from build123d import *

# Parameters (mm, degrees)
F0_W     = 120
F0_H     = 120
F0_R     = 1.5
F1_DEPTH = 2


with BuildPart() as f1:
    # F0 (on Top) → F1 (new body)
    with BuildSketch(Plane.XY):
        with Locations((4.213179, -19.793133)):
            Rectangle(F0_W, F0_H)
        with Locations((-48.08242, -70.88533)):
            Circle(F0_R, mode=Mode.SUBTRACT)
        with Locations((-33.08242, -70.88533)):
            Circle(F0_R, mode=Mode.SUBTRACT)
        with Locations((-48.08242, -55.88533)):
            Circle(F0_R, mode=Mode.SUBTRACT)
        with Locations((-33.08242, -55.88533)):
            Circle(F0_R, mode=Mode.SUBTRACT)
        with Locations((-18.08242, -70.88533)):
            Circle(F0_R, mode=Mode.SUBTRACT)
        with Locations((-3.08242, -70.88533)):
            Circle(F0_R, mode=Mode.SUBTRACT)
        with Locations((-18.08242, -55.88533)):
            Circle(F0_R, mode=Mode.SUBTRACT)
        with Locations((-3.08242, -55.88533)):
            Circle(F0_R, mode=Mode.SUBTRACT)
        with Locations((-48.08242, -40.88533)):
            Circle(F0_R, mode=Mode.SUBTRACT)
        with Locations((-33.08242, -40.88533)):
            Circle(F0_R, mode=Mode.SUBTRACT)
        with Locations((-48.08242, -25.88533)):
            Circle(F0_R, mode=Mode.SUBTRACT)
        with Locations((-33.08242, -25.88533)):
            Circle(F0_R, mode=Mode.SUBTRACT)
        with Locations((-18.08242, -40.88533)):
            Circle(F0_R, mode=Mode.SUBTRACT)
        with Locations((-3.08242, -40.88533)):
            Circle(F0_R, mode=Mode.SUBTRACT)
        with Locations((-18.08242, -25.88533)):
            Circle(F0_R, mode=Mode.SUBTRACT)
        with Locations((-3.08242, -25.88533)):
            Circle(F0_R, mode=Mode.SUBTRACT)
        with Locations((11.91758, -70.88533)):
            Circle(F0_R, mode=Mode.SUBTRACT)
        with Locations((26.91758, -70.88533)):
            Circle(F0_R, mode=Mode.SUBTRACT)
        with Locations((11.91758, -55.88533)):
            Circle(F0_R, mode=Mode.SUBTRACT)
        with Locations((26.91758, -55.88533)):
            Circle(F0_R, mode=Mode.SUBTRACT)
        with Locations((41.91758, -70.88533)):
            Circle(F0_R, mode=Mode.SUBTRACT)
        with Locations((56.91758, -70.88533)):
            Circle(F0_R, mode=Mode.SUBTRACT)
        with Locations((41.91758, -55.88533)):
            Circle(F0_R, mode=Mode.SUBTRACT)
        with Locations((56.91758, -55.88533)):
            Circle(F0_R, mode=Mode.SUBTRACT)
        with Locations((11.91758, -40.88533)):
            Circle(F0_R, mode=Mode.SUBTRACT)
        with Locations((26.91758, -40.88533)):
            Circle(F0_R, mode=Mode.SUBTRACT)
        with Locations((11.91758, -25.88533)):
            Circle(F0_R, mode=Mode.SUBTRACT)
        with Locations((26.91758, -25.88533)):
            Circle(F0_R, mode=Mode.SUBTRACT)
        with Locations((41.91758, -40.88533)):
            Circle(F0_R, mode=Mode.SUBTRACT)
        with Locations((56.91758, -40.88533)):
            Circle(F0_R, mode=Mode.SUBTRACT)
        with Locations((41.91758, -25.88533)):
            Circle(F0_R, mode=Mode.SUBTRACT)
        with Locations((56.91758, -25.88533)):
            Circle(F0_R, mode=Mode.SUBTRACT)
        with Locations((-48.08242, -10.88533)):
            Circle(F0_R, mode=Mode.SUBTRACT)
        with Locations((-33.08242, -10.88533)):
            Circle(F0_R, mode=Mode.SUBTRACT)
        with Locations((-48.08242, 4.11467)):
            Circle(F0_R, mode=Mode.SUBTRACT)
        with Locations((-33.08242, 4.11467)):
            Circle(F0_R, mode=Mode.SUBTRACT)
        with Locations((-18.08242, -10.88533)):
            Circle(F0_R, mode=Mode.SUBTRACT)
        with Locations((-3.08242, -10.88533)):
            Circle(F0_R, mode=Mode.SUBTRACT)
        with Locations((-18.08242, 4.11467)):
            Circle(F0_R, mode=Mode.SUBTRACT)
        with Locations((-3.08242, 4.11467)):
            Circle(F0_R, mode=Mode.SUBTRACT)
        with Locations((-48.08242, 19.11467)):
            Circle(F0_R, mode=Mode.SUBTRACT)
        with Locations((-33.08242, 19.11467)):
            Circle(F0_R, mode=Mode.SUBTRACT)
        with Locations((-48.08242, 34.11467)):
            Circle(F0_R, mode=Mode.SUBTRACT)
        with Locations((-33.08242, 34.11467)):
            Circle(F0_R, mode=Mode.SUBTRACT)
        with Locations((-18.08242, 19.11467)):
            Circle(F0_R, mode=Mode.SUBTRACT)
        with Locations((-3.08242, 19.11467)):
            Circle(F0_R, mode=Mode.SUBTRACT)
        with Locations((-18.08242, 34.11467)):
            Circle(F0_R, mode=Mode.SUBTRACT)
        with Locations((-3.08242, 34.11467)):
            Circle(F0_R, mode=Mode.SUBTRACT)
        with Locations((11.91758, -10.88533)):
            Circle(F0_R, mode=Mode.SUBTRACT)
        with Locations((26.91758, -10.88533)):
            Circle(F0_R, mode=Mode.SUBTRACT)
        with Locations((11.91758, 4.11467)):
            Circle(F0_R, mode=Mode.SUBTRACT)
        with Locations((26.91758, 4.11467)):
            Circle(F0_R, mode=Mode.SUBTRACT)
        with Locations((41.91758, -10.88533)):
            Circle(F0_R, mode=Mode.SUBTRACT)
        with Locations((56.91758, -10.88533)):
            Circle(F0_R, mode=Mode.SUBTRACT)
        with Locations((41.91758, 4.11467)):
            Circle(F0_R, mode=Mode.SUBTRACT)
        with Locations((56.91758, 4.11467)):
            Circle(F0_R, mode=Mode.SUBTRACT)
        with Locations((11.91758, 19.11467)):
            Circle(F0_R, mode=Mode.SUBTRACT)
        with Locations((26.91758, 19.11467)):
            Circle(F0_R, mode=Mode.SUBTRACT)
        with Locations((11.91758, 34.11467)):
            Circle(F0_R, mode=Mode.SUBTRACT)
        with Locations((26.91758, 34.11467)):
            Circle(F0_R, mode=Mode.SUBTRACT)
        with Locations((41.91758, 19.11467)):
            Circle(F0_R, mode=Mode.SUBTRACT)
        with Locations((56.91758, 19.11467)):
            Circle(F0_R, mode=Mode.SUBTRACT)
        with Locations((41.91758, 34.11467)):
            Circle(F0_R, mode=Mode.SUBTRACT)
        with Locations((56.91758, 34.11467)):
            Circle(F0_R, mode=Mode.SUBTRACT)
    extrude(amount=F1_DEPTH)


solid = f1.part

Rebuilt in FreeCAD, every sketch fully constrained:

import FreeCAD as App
import Part
import Sketcher
Q = App.Units.Quantity


def add_polygon(sketch, points):
    """Adds a closed chain of lines whose ends are joined by coincident constraints."""
    first, n = sketch.GeometryCount, len(points)
    for a, b in zip(points, points[1:] + points[:1]):
        sketch.addGeometry(Part.LineSegment(App.Vector(*a, 0), App.Vector(*b, 0)), False)
    for i in range(n):
        sketch.addConstraint(Sketcher.Constraint("Coincident", first + i, 2, first + (i + 1) % n, 1))

doc = App.newDocument("Part")
params = doc.addObject("Spreadsheet::Sheet", "Params")
for row, (alias, value) in enumerate([
    ("sketch1_diameter", "3 mm"),
    ("sketch1_width", "120 mm"),
    ("pad1_length", "2 mm"),
], start=1):
    params.set(f"A{row}", alias)
    params.set(f"B{row}", "=" + value)
    params.setAlias(f"B{row}", alias)

body = doc.addObject("PartDesign::Body", "Body")

sketch1 = body.newObject("Sketcher::SketchObject", "Sketch")
sketch1.AttachmentSupport = (doc.getObject("XY_Plane"), [""])
sketch1.MapMode = "FlatFace"
add_polygon(sketch1, [(-55.8, 40.2), (-55.8, -79.8), (64.2, -79.8), (64.2, 40.2)])
sketch1.addGeometry(Part.Circle(App.Vector(-48.1, -70.9, 0), App.Vector(0, 0, 1), 1.5), False)
sketch1.addGeometry(Part.Circle(App.Vector(-33.1, -70.9, 0), App.Vector(0, 0, 1), 1.5), False)
sketch1.addGeometry(Part.Circle(App.Vector(-48.1, -55.9, 0), App.Vector(0, 0, 1), 1.5), False)
sketch1.addGeometry(Part.Circle(App.Vector(-33.1, -55.9, 0), App.Vector(0, 0, 1), 1.5), False)
sketch1.addGeometry(Part.Circle(App.Vector(-18.1, -70.9, 0), App.Vector(0, 0, 1), 1.5), False)
sketch1.addGeometry(Part.Circle(App.Vector(-3.1, -70.9, 0), App.Vector(0, 0, 1), 1.5), False)
sketch1.addGeometry(Part.Circle(App.Vector(-18.1, -55.9, 0), App.Vector(0, 0, 1), 1.5), False)
sketch1.addGeometry(Part.Circle(App.Vector(-3.1, -55.9, 0), App.Vector(0, 0, 1), 1.5), False)
sketch1.addGeometry(Part.Circle(App.Vector(-48.1, -40.9, 0), App.Vector(0, 0, 1), 1.5), False)
sketch1.addGeometry(Part.Circle(App.Vector(-33.1, -40.9, 0), App.Vector(0, 0, 1), 1.5), False)
sketch1.addGeometry(Part.Circle(App.Vector(-48.1, -25.9, 0), App.Vector(0, 0, 1), 1.5), False)
sketch1.addGeometry(Part.Circle(App.Vector(-33.1, -25.9, 0), App.Vector(0, 0, 1), 1.5), False)
sketch1.addGeometry(Part.Circle(App.Vector(-18.1, -40.9, 0), App.Vector(0, 0, 1), 1.5), False)
sketch1.addGeometry(Part.Circle(App.Vector(-3.1, -40.9, 0), App.Vector(0, 0, 1), 1.5), False)
sketch1.addGeometry(Part.Circle(App.Vector(-18.1, -25.9, 0), App.Vector(0, 0, 1), 1.5), False)
sketch1.addGeometry(Part.Circle(App.Vector(-3.1, -25.9, 0), App.Vector(0, 0, 1), 1.5), False)
sketch1.addGeometry(Part.Circle(App.Vector(11.9, -70.9, 0), App.Vector(0, 0, 1), 1.5), False)
sketch1.addGeometry(Part.Circle(App.Vector(26.9, -70.9, 0), App.Vector(0, 0, 1), 1.5), False)
sketch1.addGeometry(Part.Circle(App.Vector(11.9, -55.9, 0), App.Vector(0, 0, 1), 1.5), False)
sketch1.addGeometry(Part.Circle(App.Vector(26.9, -55.9, 0), App.Vector(0, 0, 1), 1.5), False)
sketch1.addGeometry(Part.Circle(App.Vector(41.9, -70.9, 0), App.Vector(0, 0, 1), 1.5), False)
sketch1.addGeometry(Part.Circle(App.Vector(56.9, -70.9, 0), App.Vector(0, 0, 1), 1.5), False)
sketch1.addGeometry(Part.Circle(App.Vector(41.9, -55.9, 0), App.Vector(0, 0, 1), 1.5), False)
sketch1.addGeometry(Part.Circle(App.Vector(56.9, -55.9, 0), App.Vector(0, 0, 1), 1.5), False)
sketch1.addGeometry(Part.Circle(App.Vector(11.9, -40.9, 0), App.Vector(0, 0, 1), 1.5), False)
sketch1.addGeometry(Part.Circle(App.Vector(26.9, -40.9, 0), App.Vector(0, 0, 1), 1.5), False)
sketch1.addGeometry(Part.Circle(App.Vector(11.9, -25.9, 0), App.Vector(0, 0, 1), 1.5), False)
sketch1.addGeometry(Part.Circle(App.Vector(26.9, -25.9, 0), App.Vector(0, 0, 1), 1.5), False)
sketch1.addGeometry(Part.Circle(App.Vector(41.9, -40.9, 0), App.Vector(0, 0, 1), 1.5), False)
sketch1.addGeometry(Part.Circle(App.Vector(56.9, -40.9, 0), App.Vector(0, 0, 1), 1.5), False)
sketch1.addGeometry(Part.Circle(App.Vector(41.9, -25.9, 0), App.Vector(0, 0, 1), 1.5), False)
sketch1.addGeometry(Part.Circle(App.Vector(56.9, -25.9, 0), App.Vector(0, 0, 1), 1.5), False)
sketch1.addGeometry(Part.Circle(App.Vector(-48.1, -10.9, 0), App.Vector(0, 0, 1), 1.5), False)
sketch1.addGeometry(Part.Circle(App.Vector(-33.1, -10.9, 0), App.Vector(0, 0, 1), 1.5), False)
sketch1.addGeometry(Part.Circle(App.Vector(-48.1, 4.1, 0), App.Vector(0, 0, 1), 1.5), False)
sketch1.addGeometry(Part.Circle(App.Vector(-33.1, 4.1, 0), App.Vector(0, 0, 1), 1.5), False)
sketch1.addGeometry(Part.Circle(App.Vector(-18.1, -10.9, 0), App.Vector(0, 0, 1), 1.5), False)
sketch1.addGeometry(Part.Circle(App.Vector(-3.1, -10.9, 0), App.Vector(0, 0, 1), 1.5), False)
sketch1.addGeometry(Part.Circle(App.Vector(-18.1, 4.1, 0), App.Vector(0, 0, 1), 1.5), False)
sketch1.addGeometry(Part.Circle(App.Vector(-3.1, 4.1, 0), App.Vector(0, 0, 1), 1.5), False)
sketch1.addGeometry(Part.Circle(App.Vector(-48.1, 19.1, 0), App.Vector(0, 0, 1), 1.5), False)
sketch1.addGeometry(Part.Circle(App.Vector(-33.1, 19.1, 0), App.Vector(0, 0, 1), 1.5), False)
sketch1.addGeometry(Part.Circle(App.Vector(-48.1, 34.1, 0), App.Vector(0, 0, 1), 1.5), False)
sketch1.addGeometry(Part.Circle(App.Vector(-33.1, 34.1, 0), App.Vector(0, 0, 1), 1.5), False)
sketch1.addGeometry(Part.Circle(App.Vector(-18.1, 19.1, 0), App.Vector(0, 0, 1), 1.5), False)
sketch1.addGeometry(Part.Circle(App.Vector(-3.1, 19.1, 0), App.Vector(0, 0, 1), 1.5), False)
sketch1.addGeometry(Part.Circle(App.Vector(-18.1, 34.1, 0), App.Vector(0, 0, 1), 1.5), False)
sketch1.addGeometry(Part.Circle(App.Vector(-3.1, 34.1, 0), App.Vector(0, 0, 1), 1.5), False)
sketch1.addGeometry(Part.Circle(App.Vector(11.9, -10.9, 0), App.Vector(0, 0, 1), 1.5), False)
sketch1.addGeometry(Part.Circle(App.Vector(26.9, -10.9, 0), App.Vector(0, 0, 1), 1.5), False)
sketch1.addGeometry(Part.Circle(App.Vector(11.9, 4.1, 0), App.Vector(0, 0, 1), 1.5), False)
sketch1.addGeometry(Part.Circle(App.Vector(26.9, 4.1, 0), App.Vector(0, 0, 1), 1.5), False)
sketch1.addGeometry(Part.Circle(App.Vector(41.9, -10.9, 0), App.Vector(0, 0, 1), 1.5), False)
sketch1.addGeometry(Part.Circle(App.Vector(56.9, -10.9, 0), App.Vector(0, 0, 1), 1.5), False)
sketch1.addGeometry(Part.Circle(App.Vector(41.9, 4.1, 0), App.Vector(0, 0, 1), 1.5), False)
sketch1.addGeometry(Part.Circle(App.Vector(56.9, 4.1, 0), App.Vector(0, 0, 1), 1.5), False)
sketch1.addGeometry(Part.Circle(App.Vector(11.9, 19.1, 0), App.Vector(0, 0, 1), 1.5), False)
sketch1.addGeometry(Part.Circle(App.Vector(26.9, 19.1, 0), App.Vector(0, 0, 1), 1.5), False)
sketch1.addGeometry(Part.Circle(App.Vector(11.9, 34.1, 0), App.Vector(0, 0, 1), 1.5), False)
sketch1.addGeometry(Part.Circle(App.Vector(26.9, 34.1, 0), App.Vector(0, 0, 1), 1.5), False)
sketch1.addGeometry(Part.Circle(App.Vector(41.9, 19.1, 0), App.Vector(0, 0, 1), 1.5), False)
sketch1.addGeometry(Part.Circle(App.Vector(56.9, 19.1, 0), App.Vector(0, 0, 1), 1.5), False)
sketch1.addGeometry(Part.Circle(App.Vector(41.9, 34.1, 0), App.Vector(0, 0, 1), 1.5), False)
sketch1.addGeometry(Part.Circle(App.Vector(56.9, 34.1, 0), App.Vector(0, 0, 1), 1.5), False)
sketch1.addConstraint([
    Sketcher.Constraint("Vertical", 0),
    Sketcher.Constraint("Horizontal", 1),
    Sketcher.Constraint("Vertical", 2),
    Sketcher.Constraint("Horizontal", 3),
    Sketcher.Constraint("Equal", 4, 5),
    Sketcher.Constraint("Equal", 5, 6),
    Sketcher.Constraint("Equal", 6, 7),
    Sketcher.Constraint("Equal", 7, 8),
    Sketcher.Constraint("Equal", 8, 9),
    Sketcher.Constraint("Equal", 9, 10),
    Sketcher.Constraint("Equal", 10, 11),
    Sketcher.Constraint("Equal", 11, 12),
    Sketcher.Constraint("Equal", 12, 13),
    Sketcher.Constraint("Equal", 13, 14),
    Sketcher.Constraint("Equal", 14, 15),
    Sketcher.Constraint("Equal", 15, 16),
    Sketcher.Constraint("Equal", 16, 17),
    Sketcher.Constraint("Equal", 17, 18),
    Sketcher.Constraint("Equal", 18, 19),
    Sketcher.Constraint("Equal", 19, 20),
    Sketcher.Constraint("Equal", 20, 21),
    Sketcher.Constraint("Equal", 21, 22),
    Sketcher.Constraint("Equal", 22, 23),
    Sketcher.Constraint("Equal", 23, 24),
    Sketcher.Constraint("Equal", 24, 25),
    Sketcher.Constraint("Equal", 25, 26),
    Sketcher.Constraint("Equal", 26, 27),
    Sketcher.Constraint("Equal", 27, 28),
    Sketcher.Constraint("Equal", 28, 29),
    Sketcher.Constraint("Equal", 29, 30),
    Sketcher.Constraint("Equal", 30, 31),
    Sketcher.Constraint("Equal", 31, 32),
    Sketcher.Constraint("Equal", 32, 33),
    Sketcher.Constraint("Equal", 33, 34),
    Sketcher.Constraint("Equal", 34, 35),
    Sketcher.Constraint("Equal", 35, 36),
    Sketcher.Constraint("Equal", 36, 37),
    Sketcher.Constraint("Equal", 37, 38),
    Sketcher.Constraint("Equal", 38, 39),
    Sketcher.Constraint("Equal", 39, 40),
    Sketcher.Constraint("Equal", 40, 41),
    Sketcher.Constraint("Equal", 41, 42),
    Sketcher.Constraint("Equal", 42, 43),
    Sketcher.Constraint("Equal", 43, 44),
    Sketcher.Constraint("Equal", 44, 45),
    Sketcher.Constraint("Equal", 45, 46),
    Sketcher.Constraint("Equal", 46, 47),
    Sketcher.Constraint("Equal", 47, 48),
    Sketcher.Constraint("Equal", 48, 49),
    Sketcher.Constraint("Equal", 49, 50),
    Sketcher.Constraint("Equal", 50, 51),
    Sketcher.Constraint("Equal", 51, 52),
    Sketcher.Constraint("Equal", 52, 53),
    Sketcher.Constraint("Equal", 53, 54),
    Sketcher.Constraint("Equal", 54, 55),
    Sketcher.Constraint("Equal", 55, 56),
    Sketcher.Constraint("Equal", 56, 57),
    Sketcher.Constraint("Equal", 57, 58),
    Sketcher.Constraint("Equal", 58, 59),
    Sketcher.Constraint("Equal", 59, 60),
    Sketcher.Constraint("Equal", 60, 61),
    Sketcher.Constraint("Equal", 61, 62),
    Sketcher.Constraint("Equal", 62, 63),
    Sketcher.Constraint("Equal", 63, 64),
    Sketcher.Constraint("Equal", 64, 65),
    Sketcher.Constraint("Equal", 65, 66),
    Sketcher.Constraint("Equal", 66, 67),
    Sketcher.Constraint("Horizontal", 4, 3, 5, 3),
    Sketcher.Constraint("Horizontal", 6, 3, 7, 3),
    Sketcher.Constraint("Horizontal", 5, 3, 8, 3),
    Sketcher.Constraint("Horizontal", 8, 3, 9, 3),
    Sketcher.Constraint("Horizontal", 7, 3, 10, 3),
    Sketcher.Constraint("Horizontal", 10, 3, 11, 3),
    Sketcher.Constraint("Horizontal", 12, 3, 13, 3),
    Sketcher.Constraint("Horizontal", 14, 3, 15, 3),
    Sketcher.Constraint("Horizontal", 13, 3, 16, 3),
    Sketcher.Constraint("Horizontal", 16, 3, 17, 3),
    Sketcher.Constraint("Horizontal", 15, 3, 18, 3),
    Sketcher.Constraint("Horizontal", 18, 3, 19, 3),
    Sketcher.Constraint("Horizontal", 9, 3, 20, 3),
    Sketcher.Constraint("Horizontal", 20, 3, 21, 3),
    Sketcher.Constraint("Horizontal", 11, 3, 22, 3),
    Sketcher.Constraint("Horizontal", 22, 3, 23, 3),
    Sketcher.Constraint("Horizontal", 21, 3, 24, 3),
    Sketcher.Constraint("Horizontal", 24, 3, 25, 3),
    Sketcher.Constraint("Horizontal", 23, 3, 26, 3),
    Sketcher.Constraint("Horizontal", 26, 3, 27, 3),
    Sketcher.Constraint("Horizontal", 17, 3, 28, 3),
    Sketcher.Constraint("Horizontal", 28, 3, 29, 3),
    Sketcher.Constraint("Horizontal", 19, 3, 30, 3),
    Sketcher.Constraint("Horizontal", 30, 3, 31, 3),
    Sketcher.Constraint("Horizontal", 29, 3, 32, 3),
    Sketcher.Constraint("Horizontal", 32, 3, 33, 3),
    Sketcher.Constraint("Horizontal", 31, 3, 34, 3),
    Sketcher.Constraint("Horizontal", 34, 3, 35, 3),
    Sketcher.Constraint("Horizontal", 36, 3, 37, 3),
    Sketcher.Constraint("Horizontal", 38, 3, 39, 3),
    Sketcher.Constraint("Horizontal", 37, 3, 40, 3),
    Sketcher.Constraint("Horizontal", 40, 3, 41, 3),
    Sketcher.Constraint("Horizontal", 39, 3, 42, 3),
    Sketcher.Constraint("Horizontal", 42, 3, 43, 3),
    Sketcher.Constraint("Horizontal", 44, 3, 45, 3),
    Sketcher.Constraint("Horizontal", 46, 3, 47, 3),
    Sketcher.Constraint("Horizontal", 45, 3, 48, 3),
    Sketcher.Constraint("Horizontal", 48, 3, 49, 3),
    Sketcher.Constraint("Horizontal", 47, 3, 50, 3),
    Sketcher.Constraint("Horizontal", 50, 3, 51, 3),
    Sketcher.Constraint("Horizontal", 41, 3, 52, 3),
    Sketcher.Constraint("Horizontal", 52, 3, 53, 3),
    Sketcher.Constraint("Horizontal", 43, 3, 54, 3),
    Sketcher.Constraint("Horizontal", 54, 3, 55, 3),
    Sketcher.Constraint("Horizontal", 53, 3, 56, 3),
    Sketcher.Constraint("Horizontal", 56, 3, 57, 3),
    Sketcher.Constraint("Horizontal", 55, 3, 58, 3),
    Sketcher.Constraint("Horizontal", 58, 3, 59, 3),
    Sketcher.Constraint("Horizontal", 49, 3, 60, 3),
    Sketcher.Constraint("Horizontal", 60, 3, 61, 3),
    Sketcher.Constraint("Horizontal", 51, 3, 62, 3),
    Sketcher.Constraint("Horizontal", 62, 3, 63, 3),
    Sketcher.Constraint("Horizontal", 61, 3, 64, 3),
    Sketcher.Constraint("Horizontal", 64, 3, 65, 3),
    Sketcher.Constraint("Horizontal", 63, 3, 66, 3),
    Sketcher.Constraint("Horizontal", 66, 3, 67, 3),
    Sketcher.Constraint("Vertical", 4, 3, 6, 3),
    Sketcher.Constraint("Vertical", 5, 3, 7, 3),
    Sketcher.Constraint("Vertical", 8, 3, 10, 3),
    Sketcher.Constraint("Vertical", 9, 3, 11, 3),
    Sketcher.Constraint("Vertical", 6, 3, 12, 3),
    Sketcher.Constraint("Vertical", 7, 3, 13, 3),
    Sketcher.Constraint("Vertical", 12, 3, 14, 3),
    Sketcher.Constraint("Vertical", 13, 3, 15, 3),
    Sketcher.Constraint("Vertical", 10, 3, 16, 3),
    Sketcher.Constraint("Vertical", 11, 3, 17, 3),
    Sketcher.Constraint("Vertical", 16, 3, 18, 3),
    Sketcher.Constraint("Vertical", 17, 3, 19, 3),
    Sketcher.Constraint("Vertical", 20, 3, 22, 3),
    Sketcher.Constraint("Vertical", 21, 3, 23, 3),
    Sketcher.Constraint("Vertical", 24, 3, 26, 3),
    Sketcher.Constraint("Vertical", 25, 3, 27, 3),
    Sketcher.Constraint("Vertical", 22, 3, 28, 3),
    Sketcher.Constraint("Vertical", 23, 3, 29, 3),
    Sketcher.Constraint("Vertical", 28, 3, 30, 3),
    Sketcher.Constraint("Vertical", 29, 3, 31, 3),
    Sketcher.Constraint("Vertical", 26, 3, 32, 3),
    Sketcher.Constraint("Vertical", 27, 3, 33, 3),
    Sketcher.Constraint("Vertical", 32, 3, 34, 3),
    Sketcher.Constraint("Vertical", 33, 3, 35, 3),
    Sketcher.Constraint("Vertical", 14, 3, 36, 3),
    Sketcher.Constraint("Vertical", 15, 3, 37, 3),
    Sketcher.Constraint("Vertical", 36, 3, 38, 3),
    Sketcher.Constraint("Vertical", 37, 3, 39, 3),
    Sketcher.Constraint("Vertical", 18, 3, 40, 3),
    Sketcher.Constraint("Vertical", 19, 3, 41, 3),
    Sketcher.Constraint("Vertical", 40, 3, 42, 3),
    Sketcher.Constraint("Vertical", 41, 3, 43, 3),
    Sketcher.Constraint("Vertical", 38, 3, 44, 3),
    Sketcher.Constraint("Vertical", 39, 3, 45, 3),
    Sketcher.Constraint("Vertical", 44, 3, 46, 3),
    Sketcher.Constraint("Vertical", 45, 3, 47, 3),
    Sketcher.Constraint("Vertical", 42, 3, 48, 3),
    Sketcher.Constraint("Vertical", 43, 3, 49, 3),
    Sketcher.Constraint("Vertical", 48, 3, 50, 3),
    Sketcher.Constraint("Vertical", 49, 3, 51, 3),
    Sketcher.Constraint("Vertical", 30, 3, 52, 3),
    Sketcher.Constraint("Vertical", 31, 3, 53, 3),
    Sketcher.Constraint("Vertical", 52, 3, 54, 3),
    Sketcher.Constraint("Vertical", 53, 3, 55, 3),
    Sketcher.Constraint("Vertical", 34, 3, 56, 3),
    Sketcher.Constraint("Vertical", 35, 3, 57, 3),
    Sketcher.Constraint("Vertical", 56, 3, 58, 3),
    Sketcher.Constraint("Vertical", 57, 3, 59, 3),
    Sketcher.Constraint("Vertical", 54, 3, 60, 3),
    Sketcher.Constraint("Vertical", 55, 3, 61, 3),
    Sketcher.Constraint("Vertical", 60, 3, 62, 3),
    Sketcher.Constraint("Vertical", 61, 3, 63, 3),
    Sketcher.Constraint("Vertical", 58, 3, 64, 3),
    Sketcher.Constraint("Vertical", 59, 3, 65, 3),
    Sketcher.Constraint("Vertical", 64, 3, 66, 3),
    Sketcher.Constraint("Vertical", 65, 3, 67, 3),
    Sketcher.Constraint("Equal", 3, 0),
    Sketcher.Constraint("Diameter", 4, Q("3 mm")),
    Sketcher.Constraint("DistanceX", 1, 1, 1, 2, Q("120 mm")),
    Sketcher.Constraint("DistanceX", 4, 3, -1, 1, Q("48.08242 mm")),
    Sketcher.Constraint("DistanceY", 4, 3, -1, 1, Q("70.88533 mm")),
    Sketcher.Constraint("DistanceX", 5, 3, -1, 1, Q("33.08242 mm")),
    Sketcher.Constraint("DistanceY", 6, 3, -1, 1, Q("55.88533 mm")),
    Sketcher.Constraint("DistanceX", 8, 3, -1, 1, Q("18.08242 mm")),
    Sketcher.Constraint("DistanceX", 9, 3, -1, 1, Q("3.08242 mm")),
    Sketcher.Constraint("DistanceY", 12, 3, -1, 1, Q("40.88533 mm")),
    Sketcher.Constraint("DistanceY", 14, 3, -1, 1, Q("25.88533 mm")),
    Sketcher.Constraint("DistanceX", -1, 1, 20, 3, Q("11.91758 mm")),
    Sketcher.Constraint("DistanceX", -1, 1, 21, 3, Q("26.91758 mm")),
    Sketcher.Constraint("DistanceX", -1, 1, 24, 3, Q("41.91758 mm")),
    Sketcher.Constraint("DistanceX", -1, 1, 25, 3, Q("56.91758 mm")),
    Sketcher.Constraint("DistanceY", 36, 3, -1, 1, Q("10.88533 mm")),
    Sketcher.Constraint("DistanceY", -1, 1, 38, 3, Q("4.11467 mm")),
    Sketcher.Constraint("DistanceY", -1, 1, 44, 3, Q("19.11467 mm")),
    Sketcher.Constraint("DistanceY", -1, 1, 46, 3, Q("34.11467 mm")),
    Sketcher.Constraint("DistanceX", 0, 2, -1, 1, Q("55.786821 mm")),
    Sketcher.Constraint("DistanceY", 0, 2, -1, 1, Q("79.793133 mm")),
])
sketch1.setExpression("Constraints[184]", "Params.sketch1_diameter")
sketch1.setExpression("Constraints[185]", "Params.sketch1_width")
pad1 = body.newObject("PartDesign::Pad", "Pad")
pad1.Profile = sketch1
pad1.setExpression("Length", "Params.pad1_length")

doc.recompute()
